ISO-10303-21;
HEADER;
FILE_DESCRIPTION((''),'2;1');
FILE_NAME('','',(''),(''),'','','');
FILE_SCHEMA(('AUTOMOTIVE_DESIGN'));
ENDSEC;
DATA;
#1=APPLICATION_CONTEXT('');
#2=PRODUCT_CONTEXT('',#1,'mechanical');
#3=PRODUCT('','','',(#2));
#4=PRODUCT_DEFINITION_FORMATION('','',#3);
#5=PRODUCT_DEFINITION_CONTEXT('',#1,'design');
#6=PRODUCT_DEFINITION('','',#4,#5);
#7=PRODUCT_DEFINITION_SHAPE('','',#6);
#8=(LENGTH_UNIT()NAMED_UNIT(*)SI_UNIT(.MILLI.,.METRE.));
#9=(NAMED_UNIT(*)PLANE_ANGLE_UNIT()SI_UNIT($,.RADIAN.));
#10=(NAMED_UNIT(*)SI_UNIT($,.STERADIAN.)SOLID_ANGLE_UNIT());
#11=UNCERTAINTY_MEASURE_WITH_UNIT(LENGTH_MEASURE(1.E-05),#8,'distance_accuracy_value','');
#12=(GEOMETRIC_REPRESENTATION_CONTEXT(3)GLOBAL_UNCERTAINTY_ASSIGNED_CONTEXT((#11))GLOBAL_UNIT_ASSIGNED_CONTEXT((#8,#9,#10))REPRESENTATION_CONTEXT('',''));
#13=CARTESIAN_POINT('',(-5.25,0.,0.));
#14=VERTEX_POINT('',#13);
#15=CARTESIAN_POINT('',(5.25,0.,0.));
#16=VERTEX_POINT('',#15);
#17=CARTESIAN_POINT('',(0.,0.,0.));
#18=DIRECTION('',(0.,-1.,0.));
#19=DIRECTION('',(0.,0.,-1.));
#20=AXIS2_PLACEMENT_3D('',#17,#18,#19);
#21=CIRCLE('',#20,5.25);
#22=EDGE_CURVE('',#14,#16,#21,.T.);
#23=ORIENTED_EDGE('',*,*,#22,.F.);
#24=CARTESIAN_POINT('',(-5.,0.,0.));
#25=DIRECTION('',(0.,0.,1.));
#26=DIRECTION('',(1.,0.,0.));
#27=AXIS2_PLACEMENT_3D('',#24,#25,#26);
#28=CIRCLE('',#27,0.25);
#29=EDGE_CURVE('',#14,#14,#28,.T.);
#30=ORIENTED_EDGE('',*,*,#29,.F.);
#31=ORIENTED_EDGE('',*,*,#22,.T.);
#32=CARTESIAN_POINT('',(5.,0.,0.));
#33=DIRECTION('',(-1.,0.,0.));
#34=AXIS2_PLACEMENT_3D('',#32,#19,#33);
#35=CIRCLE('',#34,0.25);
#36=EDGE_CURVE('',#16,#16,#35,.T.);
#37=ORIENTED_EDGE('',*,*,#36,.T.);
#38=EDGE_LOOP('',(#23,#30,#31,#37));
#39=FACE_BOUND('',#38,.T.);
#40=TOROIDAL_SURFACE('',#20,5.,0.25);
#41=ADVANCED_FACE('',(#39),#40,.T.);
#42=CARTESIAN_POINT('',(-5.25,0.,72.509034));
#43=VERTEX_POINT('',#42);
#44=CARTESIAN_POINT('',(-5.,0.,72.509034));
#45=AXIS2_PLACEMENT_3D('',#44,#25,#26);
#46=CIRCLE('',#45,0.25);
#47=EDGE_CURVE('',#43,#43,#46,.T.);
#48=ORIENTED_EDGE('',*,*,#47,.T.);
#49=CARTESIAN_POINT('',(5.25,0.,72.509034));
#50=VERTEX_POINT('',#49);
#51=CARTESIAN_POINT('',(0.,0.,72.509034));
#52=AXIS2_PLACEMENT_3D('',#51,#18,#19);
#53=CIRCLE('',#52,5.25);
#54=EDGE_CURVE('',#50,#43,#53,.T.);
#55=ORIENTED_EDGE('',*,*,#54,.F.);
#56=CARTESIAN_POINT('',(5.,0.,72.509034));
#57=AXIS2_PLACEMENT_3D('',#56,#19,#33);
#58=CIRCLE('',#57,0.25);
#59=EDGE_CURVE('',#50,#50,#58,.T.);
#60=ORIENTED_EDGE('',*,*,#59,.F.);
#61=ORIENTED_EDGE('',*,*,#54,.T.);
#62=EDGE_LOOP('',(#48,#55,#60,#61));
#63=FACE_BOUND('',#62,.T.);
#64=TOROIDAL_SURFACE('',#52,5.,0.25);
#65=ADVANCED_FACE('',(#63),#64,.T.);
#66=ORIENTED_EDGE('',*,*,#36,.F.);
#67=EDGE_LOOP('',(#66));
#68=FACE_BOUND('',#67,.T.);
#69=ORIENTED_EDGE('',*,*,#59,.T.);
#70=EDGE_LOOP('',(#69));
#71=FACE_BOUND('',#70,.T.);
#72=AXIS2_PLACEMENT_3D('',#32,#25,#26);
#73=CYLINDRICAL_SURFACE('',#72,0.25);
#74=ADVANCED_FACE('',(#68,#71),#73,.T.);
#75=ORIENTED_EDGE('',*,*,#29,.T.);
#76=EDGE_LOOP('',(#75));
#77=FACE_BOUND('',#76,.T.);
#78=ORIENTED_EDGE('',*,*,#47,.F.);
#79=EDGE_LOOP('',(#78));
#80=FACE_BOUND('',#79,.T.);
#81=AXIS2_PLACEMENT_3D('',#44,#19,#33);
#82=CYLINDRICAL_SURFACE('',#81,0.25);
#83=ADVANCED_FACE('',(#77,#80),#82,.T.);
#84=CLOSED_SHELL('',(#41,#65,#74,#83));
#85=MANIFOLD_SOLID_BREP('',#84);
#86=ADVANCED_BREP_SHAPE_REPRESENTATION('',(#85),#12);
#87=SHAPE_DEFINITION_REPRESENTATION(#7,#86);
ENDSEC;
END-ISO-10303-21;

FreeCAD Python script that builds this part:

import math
import FreeCAD as App
import Part
import Sketcher

V = App.Vector
Q = App.Units.Quantity

doc = App.newDocument("Part")
body = doc.addObject("PartDesign::Body", "Body")

sketch1 = body.newObject("Sketcher::SketchObject", "Sketch")
sketch1.AttachmentSupport = (doc.getObject("XY_Plane"), [""])
sketch1.MapMode = "FlatFace"
sketch1.addGeometry(Part.Circle(V(-5, 0, 0), V(0, 0, 1), 0.25), False)
sketch1.addConstraint([
    Sketcher.Constraint("PointOnObject", 0, 3, -1),
    Sketcher.Constraint("Diameter", 0, Q("0.5 mm")),
    Sketcher.Constraint("DistanceX", 0, 3, -1, 1, Q("5 mm")),
])

sketch2 = body.newObject("Sketcher::SketchObject", "Sketch001")
sketch2.AttachmentSupport = (doc.getObject("XZ_Plane"), [""])
sketch2.MapMode = "FlatFace"
sketch2.addGeometry([
    Part.LineSegment(V(-5, 0, 0), V(-5, 73, 0)),
    Part.ArcOfCircle(Part.Circle(V(0, 73, 0), V(0, 0, 1), 5), math.radians(0), math.radians(180)),
    Part.LineSegment(V(5, 73, 0), V(5, 0, 0)),
    Part.ArcOfCircle(Part.Circle(V(0, 0, 0), V(0, 0, 1), 5), math.radians(180), math.radians(360)),
], False)
sketch2.addConstraint([
    Sketcher.Constraint("Tangent", 0, 2, 1, 2),
    Sketcher.Constraint("Tangent", 1, 1, 2, 1),
    Sketcher.Constraint("Tangent", 2, 2, 3, 2),
    Sketcher.Constraint("Tangent", 3, 1, 0, 1),
    Sketcher.Constraint("Vertical", 0),
    Sketcher.Constraint("Vertical", 2),
    Sketcher.Constraint("Coincident", 3, 3, -1, 1),
    Sketcher.Constraint("Radius", 1, Q("5 mm")),
    Sketcher.Constraint("DistanceY", 0, 1, 0, 2, Q("72.509034 mm")),
])
doc.recompute()

additivepipe = body.newObject("PartDesign::AdditivePipe", "AdditivePipe")
additivepipe.Profile = sketch1
additivepipe.Spine = (sketch2, ["Edge1", "Edge2", "Edge3", "Edge4"])

doc.recompute()
